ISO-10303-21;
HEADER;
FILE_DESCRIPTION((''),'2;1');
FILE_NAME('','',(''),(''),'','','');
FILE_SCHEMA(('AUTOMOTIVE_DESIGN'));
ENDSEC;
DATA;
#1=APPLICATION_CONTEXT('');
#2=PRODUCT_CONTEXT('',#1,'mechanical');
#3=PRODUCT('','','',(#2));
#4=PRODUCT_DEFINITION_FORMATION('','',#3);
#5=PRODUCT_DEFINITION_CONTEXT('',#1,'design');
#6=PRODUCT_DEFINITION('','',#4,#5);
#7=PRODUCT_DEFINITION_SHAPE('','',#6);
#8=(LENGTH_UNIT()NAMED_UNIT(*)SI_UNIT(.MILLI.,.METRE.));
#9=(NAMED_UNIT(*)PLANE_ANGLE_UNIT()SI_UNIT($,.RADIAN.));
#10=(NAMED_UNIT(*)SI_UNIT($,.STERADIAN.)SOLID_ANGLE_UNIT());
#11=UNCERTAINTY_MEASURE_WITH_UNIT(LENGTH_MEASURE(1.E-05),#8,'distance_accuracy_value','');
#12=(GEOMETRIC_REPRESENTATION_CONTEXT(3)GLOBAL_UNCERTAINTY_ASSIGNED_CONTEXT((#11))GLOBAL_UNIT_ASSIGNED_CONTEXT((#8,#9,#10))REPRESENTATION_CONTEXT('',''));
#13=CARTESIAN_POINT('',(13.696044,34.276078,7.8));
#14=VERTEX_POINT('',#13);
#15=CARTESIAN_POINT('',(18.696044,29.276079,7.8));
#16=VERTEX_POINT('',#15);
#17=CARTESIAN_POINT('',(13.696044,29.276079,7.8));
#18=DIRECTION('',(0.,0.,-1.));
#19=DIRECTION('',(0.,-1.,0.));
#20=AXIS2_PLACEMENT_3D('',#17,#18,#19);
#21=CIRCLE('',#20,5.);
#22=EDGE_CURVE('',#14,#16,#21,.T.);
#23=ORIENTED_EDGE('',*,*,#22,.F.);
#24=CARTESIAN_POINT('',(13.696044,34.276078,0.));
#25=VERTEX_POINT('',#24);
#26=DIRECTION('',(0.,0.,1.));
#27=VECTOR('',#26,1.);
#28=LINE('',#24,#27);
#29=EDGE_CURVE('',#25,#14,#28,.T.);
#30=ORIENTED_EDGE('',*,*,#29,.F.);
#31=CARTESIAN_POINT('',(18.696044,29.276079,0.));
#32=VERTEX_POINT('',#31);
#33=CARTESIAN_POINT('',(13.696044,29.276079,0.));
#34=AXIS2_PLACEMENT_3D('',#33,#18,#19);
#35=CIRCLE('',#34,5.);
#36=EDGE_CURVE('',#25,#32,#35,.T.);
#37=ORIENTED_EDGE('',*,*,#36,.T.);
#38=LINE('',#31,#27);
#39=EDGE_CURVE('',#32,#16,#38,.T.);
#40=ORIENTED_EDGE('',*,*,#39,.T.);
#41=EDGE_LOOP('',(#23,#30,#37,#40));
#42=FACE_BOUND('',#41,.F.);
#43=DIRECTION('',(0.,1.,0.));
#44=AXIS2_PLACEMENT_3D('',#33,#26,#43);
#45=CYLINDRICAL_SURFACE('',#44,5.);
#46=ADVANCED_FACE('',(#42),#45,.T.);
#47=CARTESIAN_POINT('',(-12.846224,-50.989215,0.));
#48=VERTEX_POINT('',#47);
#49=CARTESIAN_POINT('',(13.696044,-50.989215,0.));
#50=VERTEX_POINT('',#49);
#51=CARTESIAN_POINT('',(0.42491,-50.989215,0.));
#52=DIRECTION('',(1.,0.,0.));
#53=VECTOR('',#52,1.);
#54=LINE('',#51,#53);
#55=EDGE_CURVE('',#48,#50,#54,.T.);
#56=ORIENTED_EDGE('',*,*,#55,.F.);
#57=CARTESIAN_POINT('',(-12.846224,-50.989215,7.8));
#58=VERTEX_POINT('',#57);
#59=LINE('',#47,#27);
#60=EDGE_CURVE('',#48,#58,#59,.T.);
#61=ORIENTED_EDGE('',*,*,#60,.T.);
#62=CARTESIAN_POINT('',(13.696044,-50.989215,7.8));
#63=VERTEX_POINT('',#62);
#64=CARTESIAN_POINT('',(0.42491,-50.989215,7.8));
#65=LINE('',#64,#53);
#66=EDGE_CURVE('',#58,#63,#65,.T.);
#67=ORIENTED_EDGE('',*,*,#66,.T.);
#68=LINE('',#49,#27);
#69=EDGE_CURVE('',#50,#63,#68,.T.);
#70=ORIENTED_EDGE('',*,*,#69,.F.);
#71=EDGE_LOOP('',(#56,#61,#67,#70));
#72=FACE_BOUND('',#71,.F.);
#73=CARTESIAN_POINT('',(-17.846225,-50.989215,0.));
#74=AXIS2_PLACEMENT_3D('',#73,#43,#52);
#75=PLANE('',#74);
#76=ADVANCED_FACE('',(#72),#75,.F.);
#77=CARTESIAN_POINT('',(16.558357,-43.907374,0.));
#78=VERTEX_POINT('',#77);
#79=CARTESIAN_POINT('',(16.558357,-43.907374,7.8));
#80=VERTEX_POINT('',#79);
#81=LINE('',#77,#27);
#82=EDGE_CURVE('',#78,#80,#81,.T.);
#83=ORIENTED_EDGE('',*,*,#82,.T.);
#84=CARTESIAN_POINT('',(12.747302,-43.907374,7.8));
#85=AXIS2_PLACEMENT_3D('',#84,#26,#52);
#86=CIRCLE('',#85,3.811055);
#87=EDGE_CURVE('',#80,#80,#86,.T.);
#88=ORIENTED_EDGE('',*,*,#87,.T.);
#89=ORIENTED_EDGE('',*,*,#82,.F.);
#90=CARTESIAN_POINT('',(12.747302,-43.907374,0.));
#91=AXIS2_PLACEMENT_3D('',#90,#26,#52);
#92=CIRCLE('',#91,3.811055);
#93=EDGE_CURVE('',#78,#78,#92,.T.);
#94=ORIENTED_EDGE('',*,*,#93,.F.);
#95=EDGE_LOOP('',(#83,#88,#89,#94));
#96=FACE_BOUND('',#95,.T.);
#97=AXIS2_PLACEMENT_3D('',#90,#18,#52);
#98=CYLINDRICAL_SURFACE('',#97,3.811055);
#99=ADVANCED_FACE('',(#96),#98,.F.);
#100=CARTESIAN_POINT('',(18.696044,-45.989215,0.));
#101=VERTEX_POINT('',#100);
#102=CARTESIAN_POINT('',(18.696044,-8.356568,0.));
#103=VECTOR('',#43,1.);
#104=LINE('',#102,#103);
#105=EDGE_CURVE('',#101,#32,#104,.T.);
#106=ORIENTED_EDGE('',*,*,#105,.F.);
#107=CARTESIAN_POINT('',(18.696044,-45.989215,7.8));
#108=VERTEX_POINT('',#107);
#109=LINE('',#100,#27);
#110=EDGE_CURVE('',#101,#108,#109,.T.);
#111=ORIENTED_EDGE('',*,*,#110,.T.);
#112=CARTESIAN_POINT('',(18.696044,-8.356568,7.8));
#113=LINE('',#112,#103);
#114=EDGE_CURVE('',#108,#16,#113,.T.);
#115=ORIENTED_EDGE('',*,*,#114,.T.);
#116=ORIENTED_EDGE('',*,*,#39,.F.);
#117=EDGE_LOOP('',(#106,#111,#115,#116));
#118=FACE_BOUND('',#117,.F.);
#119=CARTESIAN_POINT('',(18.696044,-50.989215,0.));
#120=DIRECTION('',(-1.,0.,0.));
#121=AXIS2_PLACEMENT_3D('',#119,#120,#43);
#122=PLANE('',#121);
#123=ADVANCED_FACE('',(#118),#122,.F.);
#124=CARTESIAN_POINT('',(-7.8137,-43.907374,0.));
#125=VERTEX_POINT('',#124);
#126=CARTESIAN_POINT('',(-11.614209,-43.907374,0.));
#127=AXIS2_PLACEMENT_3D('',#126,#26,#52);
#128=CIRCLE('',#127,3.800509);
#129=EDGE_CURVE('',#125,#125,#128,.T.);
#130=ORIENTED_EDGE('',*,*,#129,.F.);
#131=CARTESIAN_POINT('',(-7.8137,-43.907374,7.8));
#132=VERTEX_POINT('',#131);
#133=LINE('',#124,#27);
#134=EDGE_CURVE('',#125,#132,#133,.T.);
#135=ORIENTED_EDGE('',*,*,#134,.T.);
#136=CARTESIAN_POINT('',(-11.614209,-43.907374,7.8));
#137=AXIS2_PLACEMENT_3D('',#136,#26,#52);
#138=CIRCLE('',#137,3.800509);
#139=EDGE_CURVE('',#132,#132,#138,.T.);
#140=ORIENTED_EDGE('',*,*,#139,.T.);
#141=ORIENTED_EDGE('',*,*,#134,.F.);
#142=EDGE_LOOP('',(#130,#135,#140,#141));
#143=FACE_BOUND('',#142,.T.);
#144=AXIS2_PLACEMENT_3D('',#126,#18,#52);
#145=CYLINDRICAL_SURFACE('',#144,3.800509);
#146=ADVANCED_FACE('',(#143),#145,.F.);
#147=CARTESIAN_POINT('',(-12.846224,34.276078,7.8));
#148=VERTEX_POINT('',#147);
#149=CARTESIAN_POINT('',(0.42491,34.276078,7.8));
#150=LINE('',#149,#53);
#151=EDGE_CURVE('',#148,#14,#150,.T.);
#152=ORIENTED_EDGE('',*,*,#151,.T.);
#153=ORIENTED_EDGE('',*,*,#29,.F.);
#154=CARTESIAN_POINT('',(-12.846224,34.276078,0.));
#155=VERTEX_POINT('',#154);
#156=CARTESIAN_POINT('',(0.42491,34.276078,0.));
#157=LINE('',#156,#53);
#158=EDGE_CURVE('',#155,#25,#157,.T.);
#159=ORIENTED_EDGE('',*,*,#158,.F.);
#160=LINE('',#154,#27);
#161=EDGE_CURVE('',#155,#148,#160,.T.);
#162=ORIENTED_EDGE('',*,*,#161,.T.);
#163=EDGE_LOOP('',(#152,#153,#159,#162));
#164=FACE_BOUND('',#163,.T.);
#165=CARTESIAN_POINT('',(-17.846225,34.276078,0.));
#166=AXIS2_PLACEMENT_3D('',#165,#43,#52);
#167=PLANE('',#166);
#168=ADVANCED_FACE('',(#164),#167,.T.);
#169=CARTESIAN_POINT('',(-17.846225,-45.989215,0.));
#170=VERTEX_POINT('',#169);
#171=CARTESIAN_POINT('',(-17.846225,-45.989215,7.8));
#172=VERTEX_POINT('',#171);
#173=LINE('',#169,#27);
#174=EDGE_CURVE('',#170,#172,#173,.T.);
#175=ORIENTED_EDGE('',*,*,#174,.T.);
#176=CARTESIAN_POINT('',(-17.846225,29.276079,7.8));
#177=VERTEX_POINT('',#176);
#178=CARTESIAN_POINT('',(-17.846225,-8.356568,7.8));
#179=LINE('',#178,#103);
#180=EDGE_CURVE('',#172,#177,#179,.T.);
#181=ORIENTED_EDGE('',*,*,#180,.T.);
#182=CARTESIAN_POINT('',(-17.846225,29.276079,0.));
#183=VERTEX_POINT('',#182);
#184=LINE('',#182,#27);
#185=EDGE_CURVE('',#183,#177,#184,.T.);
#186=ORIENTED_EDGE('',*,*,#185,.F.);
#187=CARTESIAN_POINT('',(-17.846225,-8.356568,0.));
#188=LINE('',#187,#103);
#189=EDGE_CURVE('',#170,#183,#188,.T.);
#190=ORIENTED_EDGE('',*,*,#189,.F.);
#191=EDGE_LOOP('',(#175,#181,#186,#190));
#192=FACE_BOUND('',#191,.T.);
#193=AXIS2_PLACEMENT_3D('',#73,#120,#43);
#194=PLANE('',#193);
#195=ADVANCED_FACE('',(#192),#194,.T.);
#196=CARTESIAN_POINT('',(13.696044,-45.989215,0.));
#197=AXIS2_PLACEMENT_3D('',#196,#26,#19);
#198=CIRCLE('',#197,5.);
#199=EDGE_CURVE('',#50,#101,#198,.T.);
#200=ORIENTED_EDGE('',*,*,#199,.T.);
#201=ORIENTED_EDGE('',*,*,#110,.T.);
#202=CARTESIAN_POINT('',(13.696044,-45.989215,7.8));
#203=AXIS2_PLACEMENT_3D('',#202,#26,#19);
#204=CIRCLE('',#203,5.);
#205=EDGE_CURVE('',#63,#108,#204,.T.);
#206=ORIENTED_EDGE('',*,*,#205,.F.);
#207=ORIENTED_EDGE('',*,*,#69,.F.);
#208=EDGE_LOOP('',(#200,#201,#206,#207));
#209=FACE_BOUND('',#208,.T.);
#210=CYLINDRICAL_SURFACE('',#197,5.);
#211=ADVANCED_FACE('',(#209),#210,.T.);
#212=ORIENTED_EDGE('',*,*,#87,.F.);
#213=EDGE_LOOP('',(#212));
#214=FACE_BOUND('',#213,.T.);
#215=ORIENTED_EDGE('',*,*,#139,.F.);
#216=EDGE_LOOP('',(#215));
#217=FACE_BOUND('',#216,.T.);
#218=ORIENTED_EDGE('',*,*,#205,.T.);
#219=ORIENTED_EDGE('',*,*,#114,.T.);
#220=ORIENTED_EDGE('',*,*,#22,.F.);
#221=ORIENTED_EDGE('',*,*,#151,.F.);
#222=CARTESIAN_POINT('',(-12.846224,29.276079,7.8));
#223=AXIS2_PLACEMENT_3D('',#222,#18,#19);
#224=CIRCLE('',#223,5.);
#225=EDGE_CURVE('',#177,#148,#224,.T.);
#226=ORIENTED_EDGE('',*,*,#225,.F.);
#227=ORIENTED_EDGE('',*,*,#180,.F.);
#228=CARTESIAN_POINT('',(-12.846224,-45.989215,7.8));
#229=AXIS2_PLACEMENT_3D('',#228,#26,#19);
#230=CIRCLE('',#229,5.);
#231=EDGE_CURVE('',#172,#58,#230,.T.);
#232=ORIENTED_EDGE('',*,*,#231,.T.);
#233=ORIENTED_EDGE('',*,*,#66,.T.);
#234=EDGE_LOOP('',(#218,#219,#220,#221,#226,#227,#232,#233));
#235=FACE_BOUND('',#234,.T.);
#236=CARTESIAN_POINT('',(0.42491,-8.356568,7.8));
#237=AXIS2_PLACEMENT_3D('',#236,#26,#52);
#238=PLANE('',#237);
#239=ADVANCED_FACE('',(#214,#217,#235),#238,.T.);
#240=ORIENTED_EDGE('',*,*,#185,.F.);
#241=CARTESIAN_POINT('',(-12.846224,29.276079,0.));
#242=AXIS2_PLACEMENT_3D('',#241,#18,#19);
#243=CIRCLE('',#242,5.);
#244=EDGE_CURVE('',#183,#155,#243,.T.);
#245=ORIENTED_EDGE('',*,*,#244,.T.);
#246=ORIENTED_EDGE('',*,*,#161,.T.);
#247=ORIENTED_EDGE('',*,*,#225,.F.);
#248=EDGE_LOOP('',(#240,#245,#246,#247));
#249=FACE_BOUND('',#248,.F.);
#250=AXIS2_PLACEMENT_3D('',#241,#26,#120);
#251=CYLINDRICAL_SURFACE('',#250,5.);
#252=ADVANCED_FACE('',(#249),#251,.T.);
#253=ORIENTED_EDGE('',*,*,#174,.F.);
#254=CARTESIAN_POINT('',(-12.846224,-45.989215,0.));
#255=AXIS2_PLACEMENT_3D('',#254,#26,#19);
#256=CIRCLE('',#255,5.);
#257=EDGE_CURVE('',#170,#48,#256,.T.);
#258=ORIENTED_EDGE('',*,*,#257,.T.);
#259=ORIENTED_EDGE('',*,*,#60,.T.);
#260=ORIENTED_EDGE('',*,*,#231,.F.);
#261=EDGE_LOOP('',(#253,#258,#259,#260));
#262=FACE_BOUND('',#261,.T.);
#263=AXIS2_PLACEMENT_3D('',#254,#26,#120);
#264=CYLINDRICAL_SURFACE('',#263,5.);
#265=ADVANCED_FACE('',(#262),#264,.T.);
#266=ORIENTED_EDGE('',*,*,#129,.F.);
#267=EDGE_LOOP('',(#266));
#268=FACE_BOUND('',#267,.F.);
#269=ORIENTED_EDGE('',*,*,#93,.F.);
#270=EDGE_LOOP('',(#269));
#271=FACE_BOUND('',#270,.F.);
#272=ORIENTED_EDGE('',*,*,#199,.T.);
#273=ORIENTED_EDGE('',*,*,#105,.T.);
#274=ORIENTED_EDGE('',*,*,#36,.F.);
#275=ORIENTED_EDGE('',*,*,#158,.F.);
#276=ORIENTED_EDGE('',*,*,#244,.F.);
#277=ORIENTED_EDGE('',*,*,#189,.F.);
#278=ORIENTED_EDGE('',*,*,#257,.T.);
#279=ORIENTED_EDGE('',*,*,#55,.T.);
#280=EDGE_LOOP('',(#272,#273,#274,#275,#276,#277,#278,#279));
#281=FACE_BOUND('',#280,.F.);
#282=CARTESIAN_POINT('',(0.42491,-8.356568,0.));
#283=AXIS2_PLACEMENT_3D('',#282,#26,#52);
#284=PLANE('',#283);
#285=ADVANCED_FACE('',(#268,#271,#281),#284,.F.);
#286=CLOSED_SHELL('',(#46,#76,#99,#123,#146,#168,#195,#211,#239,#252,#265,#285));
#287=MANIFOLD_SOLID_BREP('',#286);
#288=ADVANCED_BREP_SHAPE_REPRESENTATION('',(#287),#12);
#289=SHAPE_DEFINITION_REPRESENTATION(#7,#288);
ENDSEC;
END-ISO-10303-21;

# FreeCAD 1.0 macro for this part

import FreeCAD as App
import Part
import Sketcher
Q = App.Units.Quantity


def edges_at(feature, points):
    """Names of the edges that pass closest to the given points."""
    edges = feature.Shape.Edges
    near = lambda p: min(range(len(edges)), key=lambda i: edges[i].distToShape(Part.Vertex(*p))[0])
    return sorted({f"Edge{near(p) + 1}" for p in points})

doc = App.newDocument("Part")
body = doc.addObject("PartDesign::Body", "Body")

# Sketch on XY plane
sketch1 = body.newObject("Sketcher::SketchObject", "Sketch")
sketch1.AttachmentSupport = (doc.getObject("XY_Plane"), [""])
sketch1.MapMode = "FlatFace"
sketch1.addGeometry([
    Part.LineSegment(App.Vector(-17.8, 34.3, 0), App.Vector(-17.8, -51, 0)),  # 0
    Part.LineSegment(App.Vector(-17.8, -51, 0), App.Vector(18.7, -51, 0)),  # 1
    Part.LineSegment(App.Vector(18.7, -51, 0), App.Vector(18.7, 34.3, 0)),  # 2
    Part.LineSegment(App.Vector(18.7, 34.3, 0), App.Vector(-17.8, 34.3, 0)),  # 3
    Part.Circle(App.Vector(-11.6, -43.9, 0), App.Vector(0, 0, 1), 3.8),  # 4
    Part.Circle(App.Vector(12.7, -43.9, 0), App.Vector(0, 0, 1), 3.8),  # 5
], False)
sketch1.addConstraint([
    Sketcher.Constraint("Coincident", 0, 2, 1, 1),
    Sketcher.Constraint("Coincident", 1, 2, 2, 1),
    Sketcher.Constraint("Coincident", 2, 2, 3, 1),
    Sketcher.Constraint("Coincident", 3, 2, 0, 1),
    Sketcher.Constraint("Vertical", 0),
    Sketcher.Constraint("Horizontal", 1),
    Sketcher.Constraint("Vertical", 2),
    Sketcher.Constraint("Horizontal", 3),
    Sketcher.Constraint("Horizontal", 4, 3, 5, 3),
    Sketcher.Constraint("Diameter", 5, Q("7.62211 mm")),
    Sketcher.Constraint("Diameter", 4, Q("7.601018 mm")),
    Sketcher.Constraint("DistanceX", 1, 1, 1, 2, Q("36.542269 mm")),
    Sketcher.Constraint("DistanceY", 0, 2, 0, 1, Q("85.265293 mm")),
    Sketcher.Constraint("DistanceX", 4, 3, -1, 1, Q("11.614209 mm")),
    Sketcher.Constraint("DistanceY", -1, 1, 2, 2, Q("34.276078 mm")),
    Sketcher.Constraint("DistanceX", 4, 3, 5, 3, Q("24.361511 mm")),
    Sketcher.Constraint("DistanceY", 0, 2, 4, 3, Q("7.081841 mm")),
    Sketcher.Constraint("DistanceX", 0, 2, -1, 1, Q("17.846225 mm")),
])
pad1 = body.newObject("PartDesign::Pad", "Pad")
pad1.Profile = sketch1
pad1.Length = 7.8
doc.recompute()

fillet = body.newObject("PartDesign::Fillet", "Fillet")
fillet.Base = (pad1, edges_at(pad1, [
    (-17.846, -50.989, 3.9),
    (18.696, -50.989, 3.9),
    (18.696, 34.276, 3.9),
    (-17.846, 34.276, 3.9),
]))
fillet.Radius = 5

doc.recompute()
